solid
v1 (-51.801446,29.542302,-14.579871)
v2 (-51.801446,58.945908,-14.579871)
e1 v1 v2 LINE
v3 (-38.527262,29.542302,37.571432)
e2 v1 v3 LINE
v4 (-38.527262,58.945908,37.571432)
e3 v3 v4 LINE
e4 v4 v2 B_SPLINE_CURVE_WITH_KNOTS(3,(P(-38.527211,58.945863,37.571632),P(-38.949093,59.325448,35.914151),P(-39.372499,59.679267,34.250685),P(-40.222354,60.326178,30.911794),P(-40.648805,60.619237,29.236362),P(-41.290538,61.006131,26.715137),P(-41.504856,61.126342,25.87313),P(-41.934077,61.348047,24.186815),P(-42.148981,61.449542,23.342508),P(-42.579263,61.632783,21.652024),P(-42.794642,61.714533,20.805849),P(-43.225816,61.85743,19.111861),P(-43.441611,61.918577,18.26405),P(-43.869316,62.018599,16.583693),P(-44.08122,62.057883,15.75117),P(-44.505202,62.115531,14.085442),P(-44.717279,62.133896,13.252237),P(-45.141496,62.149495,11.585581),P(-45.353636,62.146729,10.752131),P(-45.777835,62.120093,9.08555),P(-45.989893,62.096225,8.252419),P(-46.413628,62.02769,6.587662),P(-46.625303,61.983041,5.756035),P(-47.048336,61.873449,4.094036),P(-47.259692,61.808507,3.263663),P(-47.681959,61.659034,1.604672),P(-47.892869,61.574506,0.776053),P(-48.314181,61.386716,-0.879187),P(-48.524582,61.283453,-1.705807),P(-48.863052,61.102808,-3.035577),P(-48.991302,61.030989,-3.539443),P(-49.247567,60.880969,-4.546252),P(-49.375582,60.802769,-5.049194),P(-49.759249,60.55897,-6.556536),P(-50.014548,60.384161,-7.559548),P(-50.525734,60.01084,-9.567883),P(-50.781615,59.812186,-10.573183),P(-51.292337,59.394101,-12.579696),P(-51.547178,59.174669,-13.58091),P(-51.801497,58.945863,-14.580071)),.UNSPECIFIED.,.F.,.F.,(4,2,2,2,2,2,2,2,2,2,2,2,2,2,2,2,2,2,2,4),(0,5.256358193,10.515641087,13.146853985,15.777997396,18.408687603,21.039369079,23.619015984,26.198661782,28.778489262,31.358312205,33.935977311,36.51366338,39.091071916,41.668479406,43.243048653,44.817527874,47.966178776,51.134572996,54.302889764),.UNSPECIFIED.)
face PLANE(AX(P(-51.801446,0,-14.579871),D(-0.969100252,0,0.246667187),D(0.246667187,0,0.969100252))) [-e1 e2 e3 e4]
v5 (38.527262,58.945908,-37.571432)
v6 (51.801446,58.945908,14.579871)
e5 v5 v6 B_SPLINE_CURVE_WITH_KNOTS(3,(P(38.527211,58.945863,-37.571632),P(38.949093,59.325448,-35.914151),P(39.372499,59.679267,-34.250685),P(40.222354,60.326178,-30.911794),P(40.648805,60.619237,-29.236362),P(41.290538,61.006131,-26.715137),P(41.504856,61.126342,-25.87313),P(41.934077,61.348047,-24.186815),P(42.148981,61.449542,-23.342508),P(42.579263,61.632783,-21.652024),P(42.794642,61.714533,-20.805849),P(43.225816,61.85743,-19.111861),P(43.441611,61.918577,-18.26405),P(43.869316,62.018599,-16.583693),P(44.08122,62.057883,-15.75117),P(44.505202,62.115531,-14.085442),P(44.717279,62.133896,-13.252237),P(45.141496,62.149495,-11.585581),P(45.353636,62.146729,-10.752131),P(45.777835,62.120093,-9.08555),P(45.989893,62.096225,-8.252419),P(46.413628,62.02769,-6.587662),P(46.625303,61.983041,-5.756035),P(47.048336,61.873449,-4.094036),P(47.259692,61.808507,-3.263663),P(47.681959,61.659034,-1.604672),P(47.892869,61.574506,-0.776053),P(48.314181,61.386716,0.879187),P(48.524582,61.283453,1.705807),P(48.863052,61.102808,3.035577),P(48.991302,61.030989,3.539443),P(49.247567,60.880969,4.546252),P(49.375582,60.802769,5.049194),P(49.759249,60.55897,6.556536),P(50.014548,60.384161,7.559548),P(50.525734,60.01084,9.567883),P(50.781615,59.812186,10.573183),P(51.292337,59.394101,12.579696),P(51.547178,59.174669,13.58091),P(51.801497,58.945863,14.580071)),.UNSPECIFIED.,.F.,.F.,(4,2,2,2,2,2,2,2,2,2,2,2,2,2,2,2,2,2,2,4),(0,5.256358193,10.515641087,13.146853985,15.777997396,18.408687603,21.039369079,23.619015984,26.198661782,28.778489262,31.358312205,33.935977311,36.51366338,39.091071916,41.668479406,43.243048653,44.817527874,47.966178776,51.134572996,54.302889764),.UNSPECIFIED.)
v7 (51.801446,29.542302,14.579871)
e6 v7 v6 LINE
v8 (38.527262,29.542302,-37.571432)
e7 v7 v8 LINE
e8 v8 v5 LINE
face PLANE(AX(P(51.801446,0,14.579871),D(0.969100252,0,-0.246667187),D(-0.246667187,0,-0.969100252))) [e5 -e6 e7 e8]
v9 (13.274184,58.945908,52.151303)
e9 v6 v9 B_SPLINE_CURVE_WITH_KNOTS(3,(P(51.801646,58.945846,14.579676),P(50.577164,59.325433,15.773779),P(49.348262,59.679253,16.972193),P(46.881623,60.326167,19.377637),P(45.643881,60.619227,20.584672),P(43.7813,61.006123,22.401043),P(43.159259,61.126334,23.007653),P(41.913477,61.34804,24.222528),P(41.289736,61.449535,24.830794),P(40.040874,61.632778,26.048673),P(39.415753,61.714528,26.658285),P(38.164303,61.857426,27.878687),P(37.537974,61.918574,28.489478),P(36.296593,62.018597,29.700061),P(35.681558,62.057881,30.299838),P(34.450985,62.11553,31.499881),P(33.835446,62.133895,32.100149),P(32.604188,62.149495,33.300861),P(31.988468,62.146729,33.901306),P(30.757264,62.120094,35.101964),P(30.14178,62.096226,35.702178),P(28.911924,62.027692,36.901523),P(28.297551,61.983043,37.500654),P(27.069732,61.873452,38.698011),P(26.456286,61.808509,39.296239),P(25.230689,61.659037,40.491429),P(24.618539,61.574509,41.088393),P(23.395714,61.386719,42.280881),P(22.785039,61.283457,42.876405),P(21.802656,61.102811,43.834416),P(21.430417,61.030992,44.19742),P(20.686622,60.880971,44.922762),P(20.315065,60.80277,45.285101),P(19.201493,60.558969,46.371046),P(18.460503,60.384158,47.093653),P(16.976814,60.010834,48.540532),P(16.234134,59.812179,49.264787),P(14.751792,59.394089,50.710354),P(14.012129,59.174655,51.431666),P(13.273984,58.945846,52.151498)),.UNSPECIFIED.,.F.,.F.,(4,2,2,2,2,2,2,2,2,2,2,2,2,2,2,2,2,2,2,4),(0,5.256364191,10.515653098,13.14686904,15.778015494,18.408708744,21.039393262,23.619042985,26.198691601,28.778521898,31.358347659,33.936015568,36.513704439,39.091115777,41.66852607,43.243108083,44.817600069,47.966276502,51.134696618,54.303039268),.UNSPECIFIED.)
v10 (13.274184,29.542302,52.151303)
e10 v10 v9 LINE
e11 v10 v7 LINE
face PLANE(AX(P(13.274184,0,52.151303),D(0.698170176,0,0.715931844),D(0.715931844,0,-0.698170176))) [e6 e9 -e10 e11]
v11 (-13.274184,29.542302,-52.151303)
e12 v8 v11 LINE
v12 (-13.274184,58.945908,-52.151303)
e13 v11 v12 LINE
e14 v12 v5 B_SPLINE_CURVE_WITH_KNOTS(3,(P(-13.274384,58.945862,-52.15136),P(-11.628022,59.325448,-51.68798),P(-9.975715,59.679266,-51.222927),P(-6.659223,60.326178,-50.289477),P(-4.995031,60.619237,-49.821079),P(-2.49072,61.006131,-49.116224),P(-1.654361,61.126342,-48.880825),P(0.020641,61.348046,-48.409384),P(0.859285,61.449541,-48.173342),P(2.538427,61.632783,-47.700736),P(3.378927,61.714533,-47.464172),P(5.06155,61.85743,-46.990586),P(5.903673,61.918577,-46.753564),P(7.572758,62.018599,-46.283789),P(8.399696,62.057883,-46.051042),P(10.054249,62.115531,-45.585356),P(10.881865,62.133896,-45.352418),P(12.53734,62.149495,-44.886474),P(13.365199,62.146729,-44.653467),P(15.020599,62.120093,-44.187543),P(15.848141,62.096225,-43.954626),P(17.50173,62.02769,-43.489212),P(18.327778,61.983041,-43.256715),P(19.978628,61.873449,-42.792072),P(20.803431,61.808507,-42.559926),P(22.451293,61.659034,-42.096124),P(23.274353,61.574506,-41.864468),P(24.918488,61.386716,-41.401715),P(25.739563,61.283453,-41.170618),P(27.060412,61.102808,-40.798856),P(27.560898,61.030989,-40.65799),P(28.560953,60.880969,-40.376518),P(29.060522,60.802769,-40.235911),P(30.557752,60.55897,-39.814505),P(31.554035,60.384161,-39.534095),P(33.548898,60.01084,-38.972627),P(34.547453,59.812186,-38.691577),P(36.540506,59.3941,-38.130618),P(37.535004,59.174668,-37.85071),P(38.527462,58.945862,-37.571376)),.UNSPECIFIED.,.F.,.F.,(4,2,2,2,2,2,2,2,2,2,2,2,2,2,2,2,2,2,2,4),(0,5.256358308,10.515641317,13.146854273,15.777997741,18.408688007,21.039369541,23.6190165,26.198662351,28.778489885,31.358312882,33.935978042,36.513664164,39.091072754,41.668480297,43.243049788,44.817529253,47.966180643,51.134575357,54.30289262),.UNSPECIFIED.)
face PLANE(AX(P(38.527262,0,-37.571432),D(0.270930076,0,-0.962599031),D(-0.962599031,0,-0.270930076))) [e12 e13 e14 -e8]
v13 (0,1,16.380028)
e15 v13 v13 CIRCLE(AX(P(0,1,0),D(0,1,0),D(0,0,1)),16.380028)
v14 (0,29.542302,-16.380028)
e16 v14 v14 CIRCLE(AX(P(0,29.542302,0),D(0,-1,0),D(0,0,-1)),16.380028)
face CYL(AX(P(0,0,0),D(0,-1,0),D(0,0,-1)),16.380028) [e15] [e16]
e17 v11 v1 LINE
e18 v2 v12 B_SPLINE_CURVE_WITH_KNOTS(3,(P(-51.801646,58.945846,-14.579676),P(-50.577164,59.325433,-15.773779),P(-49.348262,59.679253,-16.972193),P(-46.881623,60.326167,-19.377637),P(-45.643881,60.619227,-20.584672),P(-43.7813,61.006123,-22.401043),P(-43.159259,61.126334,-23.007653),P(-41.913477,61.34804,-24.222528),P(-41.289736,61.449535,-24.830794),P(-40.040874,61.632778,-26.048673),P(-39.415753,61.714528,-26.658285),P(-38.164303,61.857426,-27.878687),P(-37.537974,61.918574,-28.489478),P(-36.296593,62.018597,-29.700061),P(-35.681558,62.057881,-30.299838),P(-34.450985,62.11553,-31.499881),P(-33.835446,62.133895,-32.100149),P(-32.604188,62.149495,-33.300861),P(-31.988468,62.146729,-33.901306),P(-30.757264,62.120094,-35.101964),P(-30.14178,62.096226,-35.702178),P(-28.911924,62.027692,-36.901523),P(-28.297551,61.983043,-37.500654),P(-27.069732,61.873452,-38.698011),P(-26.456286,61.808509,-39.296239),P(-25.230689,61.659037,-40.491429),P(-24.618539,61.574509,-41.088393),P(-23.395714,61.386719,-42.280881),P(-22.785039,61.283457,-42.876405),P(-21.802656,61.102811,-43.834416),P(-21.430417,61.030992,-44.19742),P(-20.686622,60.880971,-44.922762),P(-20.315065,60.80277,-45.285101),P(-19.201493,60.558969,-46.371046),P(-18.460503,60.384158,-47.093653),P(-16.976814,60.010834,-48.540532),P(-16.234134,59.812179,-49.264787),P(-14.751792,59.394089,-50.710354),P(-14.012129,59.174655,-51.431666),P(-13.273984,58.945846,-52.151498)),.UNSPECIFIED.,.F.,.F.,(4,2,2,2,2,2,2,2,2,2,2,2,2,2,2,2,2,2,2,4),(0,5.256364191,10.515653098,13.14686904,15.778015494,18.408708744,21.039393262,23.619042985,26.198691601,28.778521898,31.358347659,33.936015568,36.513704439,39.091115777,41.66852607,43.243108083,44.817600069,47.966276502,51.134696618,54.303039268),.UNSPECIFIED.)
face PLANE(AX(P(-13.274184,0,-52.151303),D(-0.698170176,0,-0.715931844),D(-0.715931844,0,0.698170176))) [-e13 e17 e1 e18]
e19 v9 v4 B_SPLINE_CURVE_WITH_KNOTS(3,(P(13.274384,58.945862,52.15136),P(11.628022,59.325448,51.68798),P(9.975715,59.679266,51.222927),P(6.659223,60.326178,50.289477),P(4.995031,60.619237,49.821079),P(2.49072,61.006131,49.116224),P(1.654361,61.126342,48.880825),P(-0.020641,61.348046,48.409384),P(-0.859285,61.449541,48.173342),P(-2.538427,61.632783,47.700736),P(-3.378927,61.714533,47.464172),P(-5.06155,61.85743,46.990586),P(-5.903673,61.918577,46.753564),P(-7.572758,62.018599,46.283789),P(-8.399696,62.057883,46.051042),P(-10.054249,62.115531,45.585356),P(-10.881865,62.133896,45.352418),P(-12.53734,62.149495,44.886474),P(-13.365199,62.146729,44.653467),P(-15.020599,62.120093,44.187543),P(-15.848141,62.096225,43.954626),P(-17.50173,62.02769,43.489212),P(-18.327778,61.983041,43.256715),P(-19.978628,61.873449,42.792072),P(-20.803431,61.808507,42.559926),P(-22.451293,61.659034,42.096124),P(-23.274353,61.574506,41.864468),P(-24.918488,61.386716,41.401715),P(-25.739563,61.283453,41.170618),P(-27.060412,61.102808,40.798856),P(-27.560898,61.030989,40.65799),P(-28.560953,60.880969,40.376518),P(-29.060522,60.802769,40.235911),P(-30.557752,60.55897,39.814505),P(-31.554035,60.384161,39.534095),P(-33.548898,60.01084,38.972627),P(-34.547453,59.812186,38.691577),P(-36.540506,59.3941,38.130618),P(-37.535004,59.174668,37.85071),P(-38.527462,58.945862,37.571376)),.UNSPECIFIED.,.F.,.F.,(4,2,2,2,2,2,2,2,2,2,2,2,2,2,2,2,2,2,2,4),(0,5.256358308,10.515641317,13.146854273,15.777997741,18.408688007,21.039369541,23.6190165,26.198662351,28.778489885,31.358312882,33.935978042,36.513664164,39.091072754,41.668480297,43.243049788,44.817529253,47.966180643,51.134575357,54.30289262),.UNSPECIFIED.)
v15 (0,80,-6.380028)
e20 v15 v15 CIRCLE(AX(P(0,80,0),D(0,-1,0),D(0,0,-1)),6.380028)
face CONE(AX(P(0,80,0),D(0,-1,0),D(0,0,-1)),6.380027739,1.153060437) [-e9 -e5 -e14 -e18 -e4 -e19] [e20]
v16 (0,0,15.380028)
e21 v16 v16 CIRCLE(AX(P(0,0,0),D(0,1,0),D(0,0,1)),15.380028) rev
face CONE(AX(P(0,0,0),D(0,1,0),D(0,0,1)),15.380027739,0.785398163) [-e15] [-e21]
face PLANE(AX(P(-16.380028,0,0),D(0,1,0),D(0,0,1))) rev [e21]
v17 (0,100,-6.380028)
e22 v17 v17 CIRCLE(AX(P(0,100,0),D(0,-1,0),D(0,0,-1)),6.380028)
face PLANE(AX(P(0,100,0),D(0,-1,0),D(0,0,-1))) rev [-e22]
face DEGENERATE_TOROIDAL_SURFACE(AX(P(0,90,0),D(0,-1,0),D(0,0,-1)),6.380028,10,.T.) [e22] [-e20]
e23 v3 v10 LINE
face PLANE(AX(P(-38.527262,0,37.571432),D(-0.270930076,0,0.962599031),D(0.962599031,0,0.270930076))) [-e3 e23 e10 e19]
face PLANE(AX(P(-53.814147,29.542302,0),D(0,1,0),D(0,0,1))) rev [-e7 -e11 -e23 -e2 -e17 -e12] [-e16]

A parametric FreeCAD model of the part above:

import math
import FreeCAD as App
import Part
import Sketcher

V = App.Vector


def edges_at(feature, points):
    """Names of the edges that pass closest to the given points."""
    edges = feature.Shape.Edges
    near = lambda p: min(range(len(edges)), key=lambda i: edges[i].distToShape(Part.Vertex(*p))[0])
    return sorted({f"Edge{near(p) + 1}" for p in points})

doc = App.newDocument("Part")
body = doc.addObject("PartDesign::Body", "Body")

sketch1 = body.newObject("Sketcher::SketchObject", "Sketch")
sketch1.AttachmentSupport = (doc.getObject("XY_Plane"), [""])
sketch1.MapMode = "FlatFace"
sketch1.addGeometry([
    Part.LineSegment(V(0, 100, 0), V(-6, 100, 0)),
    Part.ArcOfCircle(Part.Circle(V(-6, 90, 0), V(0, 0, 1), 10), math.radians(90), math.radians(270)),
    Part.LineSegment(V(-6, 80, 0), V(-54, 59, 0)),
    Part.LineSegment(V(-54, 59, 0), V(-54, 30, 0)),
    Part.LineSegment(V(-54, 30, 0), V(-16, 30, 0)),
    Part.LineSegment(V(-16, 30, 0), V(-16, 0, 0)),
    Part.LineSegment(V(-16, 0, 0), V(0, 0, 0)),
    Part.LineSegment(V(0, 0, 0), V(0, 100, 0)),
], False)
sketch1.addConstraint([
    Sketcher.Constraint("Tangent", 0, 2, 1, 1),
    Sketcher.Constraint("Coincident", 1, 2, 2, 1),
    Sketcher.Constraint("Coincident", 2, 2, 3, 1),
    Sketcher.Constraint("Coincident", 3, 2, 4, 1),
    Sketcher.Constraint("Coincident", 4, 2, 5, 1),
    Sketcher.Constraint("Coincident", 5, 2, 6, 1),
    Sketcher.Constraint("Coincident", 6, 2, 7, 1),
    Sketcher.Constraint("Coincident", 7, 2, 0, 1),
    Sketcher.Constraint("Horizontal", 0),
    Sketcher.Constraint("Vertical", 3),
    Sketcher.Constraint("Horizontal", 4),
    Sketcher.Constraint("Vertical", 5),
    Sketcher.Constraint("Horizontal", 6),
    Sketcher.Constraint("Vertical", 7),
    Sketcher.Constraint("Coincident", 6, 2, -1, 1),
    Sketcher.Constraint("Vertical", 0, 2, 1, 2),
    Sketcher.Constraint("Radius", 1, 10.0),
    Sketcher.Constraint("DistanceY", 7, 1, 7, 2, 100.0),
    Sketcher.Constraint("DistanceX", 4, 2, 1, 2, 10.0),
    Sketcher.Constraint("DistanceX", 4, 1, 4, 2, 37.434119),
    Sketcher.Constraint("Distance", 2, 51.896729),
    Sketcher.Constraint("DistanceX", 0, 2, 0, 1, 6.380028),
    Sketcher.Constraint("DistanceY", 3, 2, 3, 1, 29.403606),
])
revolution = body.newObject("PartDesign::Revolution", "Revolution")
revolution.Profile = sketch1
revolution.ReferenceAxis = (sketch1, ["V_Axis"])
revolution.Angle = 360

sketch2 = body.newObject("Sketcher::SketchObject", "Sketch001")
sketch2.AttachmentSupport = (doc.getObject("XZ_Plane"), [""])
sketch2.MapMode = "FlatFace"
sketch2.AttachmentOffset = App.Placement(V(0, 0, -100), App.Rotation())
sketch2.addGeometry([
    Part.LineSegment(V(-73, -73, 0), V(-73, 73, 0)),
    Part.LineSegment(V(-73, 73, 0), V(73, 73, 0)),
    Part.LineSegment(V(73, 73, 0), V(73, -73, 0)),
    Part.LineSegment(V(73, -73, 0), V(-73, -73, 0)),
    Part.LineSegment(V(13, 52, 0), V(-39, 38, 0)),
    Part.LineSegment(V(-39, 38, 0), V(-52, -15, 0)),
    Part.LineSegment(V(-52, -15, 0), V(-13, -52, 0)),
    Part.LineSegment(V(-13, -52, 0), V(39, -38, 0)),
    Part.LineSegment(V(39, -38, 0), V(52, 15, 0)),
    Part.LineSegment(V(52, 15, 0), V(13, 52, 0)),
], False)
sketch2.addConstraint([
    Sketcher.Constraint("Coincident", 0, 2, 1, 1),
    Sketcher.Constraint("Coincident", 1, 2, 2, 1),
    Sketcher.Constraint("Coincident", 2, 2, 3, 1),
    Sketcher.Constraint("Coincident", 3, 2, 0, 1),
    Sketcher.Constraint("Coincident", 4, 2, 5, 1),
    Sketcher.Constraint("Coincident", 5, 2, 6, 1),
    Sketcher.Constraint("Coincident", 6, 2, 7, 1),
    Sketcher.Constraint("Coincident", 7, 2, 8, 1),
    Sketcher.Constraint("Coincident", 8, 2, 9, 1),
    Sketcher.Constraint("Coincident", 9, 2, 4, 1),
    Sketcher.Constraint("Vertical", 0),
    Sketcher.Constraint("Horizontal", 1),
    Sketcher.Constraint("Vertical", 2),
    Sketcher.Constraint("Horizontal", 3),
    Sketcher.Constraint("Symmetric", 0, 2, 2, 2, -1, 1),
    Sketcher.Constraint("Symmetric", 4, 2, 7, 2, -1, 1),
    Sketcher.Constraint("Symmetric", 5, 2, 8, 2, -1, 1),
    Sketcher.Constraint("Symmetric", 6, 2, 9, 2, -1, 1),
    Sketcher.Constraint("Equal", 3, 0),
    Sketcher.Constraint("Equal", 4, 5),
    Sketcher.Constraint("Equal", 5, 6),
    Sketcher.Constraint("DistanceX", 1, 1, 1, 2, 146.052),
    Sketcher.Constraint("DistanceX", 4, 2, -1, 1, 38.527262),
    Sketcher.Constraint("DistanceY", 5, 2, -1, 1, 14.579871),
    Sketcher.Constraint("DistanceX", 5, 2, 6, 2, 38.527262),
    Sketcher.Constraint("DistanceY", 6, 2, 7, 2, 14.579871),
])
pocket1 = body.newObject("PartDesign::Pocket", "Pocket")
pocket1.Profile = sketch2
pocket1.Type = "ThroughAll"
pocket1.Reversed = True
doc.recompute()

chamfer = body.newObject("PartDesign::Chamfer", "Chamfer")
chamfer.Base = (pocket1, edges_at(pocket1, [(0, 0, 16.38)]))
chamfer.Size = 1

doc.recompute()
